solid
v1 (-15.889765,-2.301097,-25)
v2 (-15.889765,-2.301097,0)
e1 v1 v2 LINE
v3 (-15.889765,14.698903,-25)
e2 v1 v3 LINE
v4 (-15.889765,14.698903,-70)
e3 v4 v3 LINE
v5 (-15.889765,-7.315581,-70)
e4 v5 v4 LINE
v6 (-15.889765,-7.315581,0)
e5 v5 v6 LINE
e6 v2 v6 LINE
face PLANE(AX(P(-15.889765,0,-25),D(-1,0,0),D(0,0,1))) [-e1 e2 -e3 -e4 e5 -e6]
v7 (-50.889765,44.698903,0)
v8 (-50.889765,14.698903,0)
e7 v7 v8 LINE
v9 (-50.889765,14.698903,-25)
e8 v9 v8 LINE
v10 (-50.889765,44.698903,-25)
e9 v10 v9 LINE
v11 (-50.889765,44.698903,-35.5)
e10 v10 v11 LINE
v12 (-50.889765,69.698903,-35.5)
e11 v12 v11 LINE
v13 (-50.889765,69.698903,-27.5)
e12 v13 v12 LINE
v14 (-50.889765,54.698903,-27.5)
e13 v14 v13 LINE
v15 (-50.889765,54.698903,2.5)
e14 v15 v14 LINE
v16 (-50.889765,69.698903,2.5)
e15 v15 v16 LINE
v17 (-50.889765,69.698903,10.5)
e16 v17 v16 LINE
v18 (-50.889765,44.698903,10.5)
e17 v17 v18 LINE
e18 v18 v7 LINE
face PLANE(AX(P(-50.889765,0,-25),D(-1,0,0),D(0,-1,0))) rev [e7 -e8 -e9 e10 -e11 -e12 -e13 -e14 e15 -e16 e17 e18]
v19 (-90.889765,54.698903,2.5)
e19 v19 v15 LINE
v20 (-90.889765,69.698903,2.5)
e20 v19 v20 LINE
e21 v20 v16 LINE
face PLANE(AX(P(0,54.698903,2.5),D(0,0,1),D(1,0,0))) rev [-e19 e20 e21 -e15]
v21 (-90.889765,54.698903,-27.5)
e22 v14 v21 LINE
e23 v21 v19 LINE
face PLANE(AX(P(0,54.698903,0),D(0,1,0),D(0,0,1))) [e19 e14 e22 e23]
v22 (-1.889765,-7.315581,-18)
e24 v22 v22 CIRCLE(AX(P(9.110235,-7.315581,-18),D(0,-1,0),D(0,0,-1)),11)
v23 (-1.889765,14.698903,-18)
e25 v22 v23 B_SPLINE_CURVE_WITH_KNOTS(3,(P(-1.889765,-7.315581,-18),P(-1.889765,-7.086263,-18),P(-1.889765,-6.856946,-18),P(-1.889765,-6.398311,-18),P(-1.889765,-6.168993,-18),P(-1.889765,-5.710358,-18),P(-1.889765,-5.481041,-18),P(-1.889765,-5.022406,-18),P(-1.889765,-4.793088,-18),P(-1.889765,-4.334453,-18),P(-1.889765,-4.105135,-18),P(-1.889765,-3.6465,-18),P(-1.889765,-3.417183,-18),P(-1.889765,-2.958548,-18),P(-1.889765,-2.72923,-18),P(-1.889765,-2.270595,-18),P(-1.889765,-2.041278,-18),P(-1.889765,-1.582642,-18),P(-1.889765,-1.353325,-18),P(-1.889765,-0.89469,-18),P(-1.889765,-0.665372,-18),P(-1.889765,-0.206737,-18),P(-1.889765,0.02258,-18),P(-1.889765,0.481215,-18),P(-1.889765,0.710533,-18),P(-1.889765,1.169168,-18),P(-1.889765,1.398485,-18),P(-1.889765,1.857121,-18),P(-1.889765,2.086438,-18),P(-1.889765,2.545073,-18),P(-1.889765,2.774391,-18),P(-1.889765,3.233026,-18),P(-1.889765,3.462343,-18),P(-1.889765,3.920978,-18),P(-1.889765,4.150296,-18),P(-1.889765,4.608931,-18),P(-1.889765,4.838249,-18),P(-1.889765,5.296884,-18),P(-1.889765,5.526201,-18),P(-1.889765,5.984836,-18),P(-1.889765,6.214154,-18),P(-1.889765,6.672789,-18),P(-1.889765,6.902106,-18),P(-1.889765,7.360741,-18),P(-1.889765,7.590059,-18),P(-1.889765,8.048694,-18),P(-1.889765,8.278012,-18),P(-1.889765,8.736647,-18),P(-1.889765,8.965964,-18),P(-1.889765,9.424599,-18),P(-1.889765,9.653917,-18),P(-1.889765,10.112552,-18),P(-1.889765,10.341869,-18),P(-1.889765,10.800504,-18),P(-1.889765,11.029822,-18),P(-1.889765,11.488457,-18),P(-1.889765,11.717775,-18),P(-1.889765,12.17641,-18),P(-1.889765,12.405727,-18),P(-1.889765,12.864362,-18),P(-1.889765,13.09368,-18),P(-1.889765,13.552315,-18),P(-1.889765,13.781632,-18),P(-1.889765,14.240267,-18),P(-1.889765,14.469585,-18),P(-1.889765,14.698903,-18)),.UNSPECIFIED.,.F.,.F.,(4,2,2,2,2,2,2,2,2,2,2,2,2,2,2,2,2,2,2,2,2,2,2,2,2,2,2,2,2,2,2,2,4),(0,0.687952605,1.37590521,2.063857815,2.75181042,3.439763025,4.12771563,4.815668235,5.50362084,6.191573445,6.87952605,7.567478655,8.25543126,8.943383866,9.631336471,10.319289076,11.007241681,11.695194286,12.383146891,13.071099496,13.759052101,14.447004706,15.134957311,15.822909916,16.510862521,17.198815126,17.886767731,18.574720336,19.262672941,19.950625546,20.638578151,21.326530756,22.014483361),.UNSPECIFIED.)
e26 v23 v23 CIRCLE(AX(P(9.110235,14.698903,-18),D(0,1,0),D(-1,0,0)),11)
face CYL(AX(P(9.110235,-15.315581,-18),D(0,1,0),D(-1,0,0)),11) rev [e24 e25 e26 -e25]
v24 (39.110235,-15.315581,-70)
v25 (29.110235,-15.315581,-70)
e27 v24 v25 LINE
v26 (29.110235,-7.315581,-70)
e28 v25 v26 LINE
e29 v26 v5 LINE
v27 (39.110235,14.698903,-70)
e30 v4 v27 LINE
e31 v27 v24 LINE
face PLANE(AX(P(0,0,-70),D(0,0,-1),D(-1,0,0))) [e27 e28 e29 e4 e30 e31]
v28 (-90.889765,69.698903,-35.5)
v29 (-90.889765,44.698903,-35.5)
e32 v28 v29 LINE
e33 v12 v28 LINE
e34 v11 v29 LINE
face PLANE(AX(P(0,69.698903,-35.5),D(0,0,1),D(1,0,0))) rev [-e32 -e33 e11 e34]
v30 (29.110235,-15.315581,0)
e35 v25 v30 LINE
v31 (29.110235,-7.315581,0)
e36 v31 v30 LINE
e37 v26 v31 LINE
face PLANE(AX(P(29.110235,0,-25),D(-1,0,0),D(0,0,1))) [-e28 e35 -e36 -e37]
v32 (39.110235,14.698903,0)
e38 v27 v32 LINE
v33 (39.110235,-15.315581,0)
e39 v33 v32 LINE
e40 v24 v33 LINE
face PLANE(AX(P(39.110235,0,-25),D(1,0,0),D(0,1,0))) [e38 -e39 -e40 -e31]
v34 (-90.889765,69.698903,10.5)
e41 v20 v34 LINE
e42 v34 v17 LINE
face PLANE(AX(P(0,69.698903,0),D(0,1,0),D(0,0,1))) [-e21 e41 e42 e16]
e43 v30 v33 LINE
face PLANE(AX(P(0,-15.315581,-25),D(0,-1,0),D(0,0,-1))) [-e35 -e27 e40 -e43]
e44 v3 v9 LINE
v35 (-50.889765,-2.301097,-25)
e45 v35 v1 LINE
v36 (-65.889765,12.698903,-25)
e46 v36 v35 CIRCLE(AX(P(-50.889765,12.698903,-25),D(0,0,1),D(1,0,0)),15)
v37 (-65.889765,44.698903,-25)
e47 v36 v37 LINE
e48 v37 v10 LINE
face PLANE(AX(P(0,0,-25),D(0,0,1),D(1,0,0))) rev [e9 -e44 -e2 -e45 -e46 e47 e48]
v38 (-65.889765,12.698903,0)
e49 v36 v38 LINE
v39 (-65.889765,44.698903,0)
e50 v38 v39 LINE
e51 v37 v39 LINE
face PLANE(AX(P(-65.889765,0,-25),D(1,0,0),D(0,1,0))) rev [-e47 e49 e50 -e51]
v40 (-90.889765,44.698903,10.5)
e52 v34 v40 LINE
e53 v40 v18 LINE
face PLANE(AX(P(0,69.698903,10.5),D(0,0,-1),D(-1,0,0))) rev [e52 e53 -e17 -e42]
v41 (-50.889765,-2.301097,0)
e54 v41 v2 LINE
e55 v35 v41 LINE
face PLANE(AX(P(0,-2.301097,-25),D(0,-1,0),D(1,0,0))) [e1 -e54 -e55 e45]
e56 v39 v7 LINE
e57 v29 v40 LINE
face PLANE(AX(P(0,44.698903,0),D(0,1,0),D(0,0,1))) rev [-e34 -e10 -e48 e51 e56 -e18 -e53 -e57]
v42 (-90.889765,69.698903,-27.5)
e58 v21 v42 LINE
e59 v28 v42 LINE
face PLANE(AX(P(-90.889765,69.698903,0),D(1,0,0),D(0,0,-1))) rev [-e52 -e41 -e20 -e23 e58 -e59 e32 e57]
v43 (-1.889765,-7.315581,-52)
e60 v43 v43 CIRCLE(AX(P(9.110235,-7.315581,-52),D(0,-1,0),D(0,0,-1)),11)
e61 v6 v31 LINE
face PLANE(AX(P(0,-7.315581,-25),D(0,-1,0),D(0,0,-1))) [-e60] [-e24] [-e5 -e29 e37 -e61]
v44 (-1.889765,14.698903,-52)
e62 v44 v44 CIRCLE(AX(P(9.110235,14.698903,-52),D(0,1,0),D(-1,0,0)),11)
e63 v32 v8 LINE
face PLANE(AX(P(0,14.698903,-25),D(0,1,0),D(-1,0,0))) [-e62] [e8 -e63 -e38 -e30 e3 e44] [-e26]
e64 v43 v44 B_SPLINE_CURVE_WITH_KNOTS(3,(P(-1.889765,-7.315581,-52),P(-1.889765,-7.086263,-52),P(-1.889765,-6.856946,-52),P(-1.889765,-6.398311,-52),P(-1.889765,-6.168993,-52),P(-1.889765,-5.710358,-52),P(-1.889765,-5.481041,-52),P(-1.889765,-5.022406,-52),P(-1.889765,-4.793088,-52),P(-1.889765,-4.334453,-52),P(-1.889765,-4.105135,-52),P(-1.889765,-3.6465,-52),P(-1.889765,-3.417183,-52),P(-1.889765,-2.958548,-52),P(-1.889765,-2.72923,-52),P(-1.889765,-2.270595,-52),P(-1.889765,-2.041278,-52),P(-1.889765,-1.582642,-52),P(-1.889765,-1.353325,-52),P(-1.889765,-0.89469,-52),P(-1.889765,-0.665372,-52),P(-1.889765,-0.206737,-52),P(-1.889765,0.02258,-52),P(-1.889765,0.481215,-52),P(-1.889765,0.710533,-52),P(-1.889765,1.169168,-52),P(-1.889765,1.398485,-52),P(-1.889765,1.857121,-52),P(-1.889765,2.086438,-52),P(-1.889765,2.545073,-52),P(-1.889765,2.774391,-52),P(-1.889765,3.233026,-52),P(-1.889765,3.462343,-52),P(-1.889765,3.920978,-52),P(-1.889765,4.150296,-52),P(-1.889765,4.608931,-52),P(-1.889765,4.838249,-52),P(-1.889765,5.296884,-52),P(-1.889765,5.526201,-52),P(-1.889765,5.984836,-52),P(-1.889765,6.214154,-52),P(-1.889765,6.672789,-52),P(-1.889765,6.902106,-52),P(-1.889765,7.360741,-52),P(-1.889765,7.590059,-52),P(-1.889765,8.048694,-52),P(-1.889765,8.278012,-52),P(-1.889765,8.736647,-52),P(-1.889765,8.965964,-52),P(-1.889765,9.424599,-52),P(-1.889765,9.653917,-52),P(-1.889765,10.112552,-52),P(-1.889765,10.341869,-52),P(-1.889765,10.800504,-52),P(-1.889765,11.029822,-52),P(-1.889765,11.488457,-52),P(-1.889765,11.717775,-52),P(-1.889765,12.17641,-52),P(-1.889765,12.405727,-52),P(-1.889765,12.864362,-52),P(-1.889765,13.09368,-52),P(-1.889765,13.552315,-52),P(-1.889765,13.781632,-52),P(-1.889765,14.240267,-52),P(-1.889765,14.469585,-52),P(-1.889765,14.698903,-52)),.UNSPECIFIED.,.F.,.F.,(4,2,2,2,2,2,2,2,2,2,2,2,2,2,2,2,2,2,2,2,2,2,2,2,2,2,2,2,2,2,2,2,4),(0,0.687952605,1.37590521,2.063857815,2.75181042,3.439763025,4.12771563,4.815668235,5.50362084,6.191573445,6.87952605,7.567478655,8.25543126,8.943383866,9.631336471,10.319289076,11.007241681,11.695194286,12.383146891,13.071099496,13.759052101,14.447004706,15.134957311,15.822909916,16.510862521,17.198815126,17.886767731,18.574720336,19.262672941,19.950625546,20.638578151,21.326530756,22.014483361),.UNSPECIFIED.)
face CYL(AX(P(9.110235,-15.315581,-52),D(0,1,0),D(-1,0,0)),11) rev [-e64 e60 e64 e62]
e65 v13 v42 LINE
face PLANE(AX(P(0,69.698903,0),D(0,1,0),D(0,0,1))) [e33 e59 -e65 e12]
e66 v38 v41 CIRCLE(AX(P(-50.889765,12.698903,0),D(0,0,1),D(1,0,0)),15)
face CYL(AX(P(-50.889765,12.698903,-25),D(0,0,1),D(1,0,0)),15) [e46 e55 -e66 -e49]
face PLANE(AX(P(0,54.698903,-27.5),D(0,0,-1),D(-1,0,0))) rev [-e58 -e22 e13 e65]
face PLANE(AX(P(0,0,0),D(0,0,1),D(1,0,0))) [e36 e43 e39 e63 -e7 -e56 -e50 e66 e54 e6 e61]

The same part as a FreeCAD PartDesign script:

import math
import FreeCAD as App
import Part
import Sketcher
from FreeCAD import Vector


def add_polygon(sketch, points):
    """Adds a closed chain of lines whose ends are joined by coincident constraints."""
    first, n = sketch.GeometryCount, len(points)
    for a, b in zip(points, points[1:] + points[:1]):
        sketch.addGeometry(Part.LineSegment(App.Vector(*a, 0), App.Vector(*b, 0)), False)
    for i in range(n):
        sketch.addConstraint(Sketcher.Constraint("Coincident", first + i, 2, first + (i + 1) % n, 1))

doc = App.newDocument("Part")
params = doc.addObject("Spreadsheet::Sheet", "Params")
for row, (alias, value) in enumerate([
    ("sketch1_radius", "15 mm"),
    ("sketch1_width", "10 mm"),
    ("sketch1_width2", "90 mm"),
    ("sketch1_width3", "35 mm"),
    ("sketch1_height", "30 mm"),
    ("pad1_length", "25 mm"),
    ("sketch2_width", "10 mm"),
    ("sketch2_width2", "45 mm"),
    ("sketch2_height", "8 mm"),
    ("pad2_length", "45 mm"),
    ("sketch3_width", "40 mm"),
    ("sketch3_height", "46 mm"),
    ("pad3_length", "25 mm"),
    ("sketch4_width", "40 mm"),
    ("sketch4_height", "30 mm"),
    ("pocket1_length", "15 mm"),
    ("sketch5_diameter", "22 mm"),
], start=1):
    params.set(f"A{row}", alias)
    params.set(f"B{row}", "=" + value)
    params.setAlias(f"B{row}", alias)

body = doc.addObject("PartDesign::Body", "Body")

sketch1 = body.newObject("Sketcher::SketchObject", "Sketch")
sketch1.AttachmentSupport = (doc.getObject("XY_Plane"), [""])
sketch1.MapMode = "FlatFace"
sketch1.addGeometry([
    Part.LineSegment(Vector(29, -15, 0), Vector(39, -15, 0)),
    Part.LineSegment(Vector(39, -15, 0), Vector(39, 15, 0)),
    Part.LineSegment(Vector(39, 15, 0), Vector(-51, 15, 0)),
    Part.LineSegment(Vector(-51, 15, 0), Vector(-51, 45, 0)),
    Part.LineSegment(Vector(-51, 45, 0), Vector(-66, 45, 0)),
    Part.LineSegment(Vector(-66, 45, 0), Vector(-66, 13, 0)),
    Part.ArcOfCircle(Part.Circle(Vector(-51, 13, 0), Vector(0, 0, 1), 15), math.radians(180), math.radians(270)),
    Part.LineSegment(Vector(-51, -2, 0), Vector(-16, -2, 0)),
    Part.LineSegment(Vector(-16, -2, 0), Vector(-16, -7, 0)),
    Part.LineSegment(Vector(-16, -7, 0), Vector(29, -7, 0)),
    Part.LineSegment(Vector(29, -7, 0), Vector(29, -15, 0)),
], False)
sketch1.addConstraint([
    Sketcher.Constraint("Coincident", 0, 2, 1, 1),
    Sketcher.Constraint("Coincident", 1, 2, 2, 1),
    Sketcher.Constraint("Coincident", 2, 2, 3, 1),
    Sketcher.Constraint("Coincident", 3, 2, 4, 1),
    Sketcher.Constraint("Coincident", 4, 2, 5, 1),
    Sketcher.Constraint("Tangent", 5, 2, 6, 1),
    Sketcher.Constraint("Tangent", 6, 2, 7, 1),
    Sketcher.Constraint("Coincident", 7, 2, 8, 1),
    Sketcher.Constraint("Coincident", 8, 2, 9, 1),
    Sketcher.Constraint("Coincident", 9, 2, 10, 1),
    Sketcher.Constraint("Coincident", 10, 2, 0, 1),
    Sketcher.Constraint("Horizontal", 0),
    Sketcher.Constraint("Vertical", 1),
    Sketcher.Constraint("Horizontal", 2),
    Sketcher.Constraint("Vertical", 3),
    Sketcher.Constraint("Horizontal", 4),
    Sketcher.Constraint("Vertical", 5),
    Sketcher.Constraint("Horizontal", 7),
    Sketcher.Constraint("Vertical", 8),
    Sketcher.Constraint("Horizontal", 9),
    Sketcher.Constraint("Vertical", 10),
    Sketcher.Constraint("Vertical", 6, 3, 2, 2),
    Sketcher.Constraint("Radius", 6, 15.0),
    Sketcher.Constraint("DistanceX", 0, 1, 0, 2, 10.0),
    Sketcher.Constraint("DistanceX", 2, 2, 2, 1, 90.0),
    Sketcher.Constraint("DistanceX", 7, 1, 7, 2, 35.0),
    Sketcher.Constraint("DistanceY", 3, 1, 3, 2, 30.0),
    Sketcher.Constraint("DistanceY", 5, 2, 5, 1, 32.0),
    Sketcher.Constraint("DistanceY", 10, 2, 10, 1, 8.0),
    Sketcher.Constraint("DistanceY", 1, 1, 1, 2, 30.014483),
    Sketcher.Constraint("DistanceY", 0, 2, -1, 1, 15.315581),
    Sketcher.Constraint("DistanceX", 6, 3, -1, 1, 50.889765),
])
sketch1.setExpression("Constraints[22]", "Params.sketch1_radius")
sketch1.setExpression("Constraints[23]", "Params.sketch1_width")
sketch1.setExpression("Constraints[24]", "Params.sketch1_width2")
sketch1.setExpression("Constraints[25]", "Params.sketch1_width3")
sketch1.setExpression("Constraints[26]", "Params.sketch1_height")
pad1 = body.newObject("PartDesign::Pad", "Pad")
pad1.Profile = sketch1
pad1.setExpression("Length", "Params.pad1_length")
pad1.Reversed = True

sketch2 = body.newObject("Sketcher::SketchObject", "Sketch001")
sketch2.AttachmentSupport = (doc.getObject("XY_Plane"), [""])
sketch2.MapMode = "FlatFace"
sketch2.AttachmentOffset = App.Placement(Vector(0, 0, -25), App.Rotation())
add_polygon(sketch2, [(39, 15), (39, -15), (29, -15), (29, -7), (-16, -7), (-16, 15)])
sketch2.addConstraint([
    Sketcher.Constraint("Vertical", 0),
    Sketcher.Constraint("Horizontal", 1),
    Sketcher.Constraint("Vertical", 2),
    Sketcher.Constraint("Horizontal", 3),
    Sketcher.Constraint("Vertical", 4),
    Sketcher.Constraint("Horizontal", 5),
    Sketcher.Constraint("DistanceX", 1, 2, 1, 1, 10.0),
    Sketcher.Constraint("DistanceX", 3, 2, 3, 1, 45.0),
    Sketcher.Constraint("DistanceY", 2, 1, 2, 2, 8.0),
    Sketcher.Constraint("DistanceY", 0, 2, 0, 1, 30.014483),
    Sketcher.Constraint("DistanceY", 0, 2, -1, 1, 15.315581),
    Sketcher.Constraint("DistanceX", -1, 1, 0, 2, 39.110235),
])
sketch2.setExpression("Constraints[12]", "Params.sketch2_width")
sketch2.setExpression("Constraints[13]", "Params.sketch2_width2")
sketch2.setExpression("Constraints[14]", "Params.sketch2_height")
pad2 = body.newObject("PartDesign::Pad", "Pad001")
pad2.Profile = sketch2
pad2.setExpression("Length", "Params.pad2_length")
pad2.Reversed = True

sketch3 = body.newObject("Sketcher::SketchObject", "Sketch002")
sketch3.AttachmentSupport = (doc.getObject("XZ_Plane"), [""])
sketch3.MapMode = "FlatFace"
sketch3.AttachmentOffset = App.Placement(Vector(0, 0, -44.698903), App.Rotation())
add_polygon(sketch3, [(-51, -36), (-91, -36), (-91, 10), (-51, 10)])
sketch3.addConstraint([
    Sketcher.Constraint("Horizontal", 0),
    Sketcher.Constraint("Vertical", 1),
    Sketcher.Constraint("Horizontal", 2),
    Sketcher.Constraint("Vertical", 3),
    Sketcher.Constraint("DistanceX", 0, 2, 0, 1, 40.0),
    Sketcher.Constraint("DistanceY", 1, 1, 1, 2, 46.0),
    Sketcher.Constraint("DistanceY", 0, 2, -1, 1, 35.5),
    Sketcher.Constraint("DistanceX", 0, 2, -1, 1, 90.889765),
])
sketch3.setExpression("Constraints[8]", "Params.sketch3_width")
sketch3.setExpression("Constraints[9]", "Params.sketch3_height")
pad3 = body.newObject("PartDesign::Pad", "Pad002")
pad3.Profile = sketch3
pad3.setExpression("Length", "Params.pad3_length")
pad3.Reversed = True

sketch4 = body.newObject("Sketcher::SketchObject", "Sketch003")
sketch4.AttachmentSupport = (doc.getObject("XZ_Plane"), [""])
sketch4.MapMode = "FlatFace"
sketch4.AttachmentOffset = App.Placement(Vector(0, 0, -69.698903), App.Rotation())
add_polygon(sketch4, [(-91, -28), (-91, 2), (-51, 2), (-51, -28)])
sketch4.addConstraint([
    Sketcher.Constraint("Vertical", 0),
    Sketcher.Constraint("Horizontal", 1),
    Sketcher.Constraint("Vertical", 2),
    Sketcher.Constraint("Horizontal", 3),
    Sketcher.Constraint("DistanceX", 1, 1, 1, 2, 40.0),
    Sketcher.Constraint("DistanceY", 0, 1, 0, 2, 30.0),
    Sketcher.Constraint("DistanceY", -1, 1, 0, 2, 2.5),
    Sketcher.Constraint("DistanceX", 0, 2, -1, 1, 90.889765),
])
sketch4.setExpression("Constraints[8]", "Params.sketch4_width")
sketch4.setExpression("Constraints[9]", "Params.sketch4_height")
pocket1 = body.newObject("PartDesign::Pocket", "Pocket")
pocket1.Profile = sketch4
pocket1.setExpression("Length", "Params.pocket1_length")
pocket1.Reversed = True

sketch5 = body.newObject("Sketcher::SketchObject", "Sketch004")
sketch5.AttachmentSupport = (doc.getObject("XZ_Plane"), [""])
sketch5.MapMode = "FlatFace"
sketch5.AttachmentOffset = App.Placement(Vector(0, 0, -14.698903), App.Rotation())
sketch5.addGeometry([
    Part.Circle(Vector(9, -18, 0), Vector(0, 0, 1), 11),
    Part.Circle(Vector(9, -52, 0), Vector(0, 0, 1), 11),
], False)
sketch5.addConstraint([
    Sketcher.Constraint("Equal", 0, 1),
    Sketcher.Constraint("Vertical", 0, 3, 1, 3),
    Sketcher.Constraint("Diameter", 0, 22.0),
    Sketcher.Constraint("DistanceY", 0, 3, -1, 1, 18.0),
    Sketcher.Constraint("DistanceY", 1, 3, -1, 1, 52.0),
    Sketcher.Constraint("DistanceX", -1, 1, 0, 3, 9.110235),
])
sketch5.setExpression("Constraints[2]", "Params.sketch5_diameter")
pocket2 = body.newObject("PartDesign::Pocket", "Pocket001")
pocket2.Profile = sketch5
pocket2.Type = "ThroughAll"
pocket2.Reversed = True

doc.recompute()
